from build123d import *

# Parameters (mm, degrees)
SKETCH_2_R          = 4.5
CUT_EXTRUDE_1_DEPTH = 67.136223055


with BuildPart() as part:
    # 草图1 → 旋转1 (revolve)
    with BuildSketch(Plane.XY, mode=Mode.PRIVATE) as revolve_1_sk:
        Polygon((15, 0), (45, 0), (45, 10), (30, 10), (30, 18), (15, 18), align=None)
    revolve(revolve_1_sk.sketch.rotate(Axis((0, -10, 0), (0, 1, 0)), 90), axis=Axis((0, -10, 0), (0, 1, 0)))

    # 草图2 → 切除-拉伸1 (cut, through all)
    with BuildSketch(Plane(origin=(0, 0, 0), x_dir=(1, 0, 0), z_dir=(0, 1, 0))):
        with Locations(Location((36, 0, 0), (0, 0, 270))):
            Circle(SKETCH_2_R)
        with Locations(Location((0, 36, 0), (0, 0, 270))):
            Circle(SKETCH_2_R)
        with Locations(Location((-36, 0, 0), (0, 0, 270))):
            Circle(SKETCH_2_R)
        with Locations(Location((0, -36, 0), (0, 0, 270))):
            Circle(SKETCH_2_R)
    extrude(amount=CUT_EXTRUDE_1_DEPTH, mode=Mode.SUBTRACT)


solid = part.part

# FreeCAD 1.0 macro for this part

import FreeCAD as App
import Part
import Sketcher
Q = App.Units.Quantity


def add_polygon(sketch, points):
    """Adds a closed chain of lines whose ends are joined by coincident constraints."""
    first, n = sketch.GeometryCount, len(points)
    for a, b in zip(points, points[1:] + points[:1]):
        sketch.addGeometry(Part.LineSegment(App.Vector(*a, 0), App.Vector(*b, 0)), False)
    for i in range(n):
        sketch.addConstraint(Sketcher.Constraint("Coincident", first + i, 2, first + (i + 1) % n, 1))

doc = App.newDocument("Part")
params = doc.addObject("Spreadsheet::Sheet", "Params")
for row, (alias, value) in enumerate([
    ("sketch1_width", "30 mm"),
    ("sketch1_height", "10 mm"),
    ("sketch1_height2", "8 mm"),
    ("revolution_angle", "360 deg"),
    ("sketch2_diameter", "9 mm"),
], start=1):
    params.set(f"A{row}", alias)
    params.set(f"B{row}", "=" + value)
    params.setAlias(f"B{row}", alias)

body = doc.addObject("PartDesign::Body", "Body")

sketch1 = body.newObject("Sketcher::SketchObject", "Sketch")
sketch1.AttachmentSupport = (doc.getObject("XY_Plane"), [""])
sketch1.MapMode = "FlatFace"
add_polygon(sketch1, [(15, 0), (45, 0), (45, 10), (30, 10), (30, 18), (15, 18)])
sketch1.addConstraint(Sketcher.Constraint("Horizontal", 0))
sketch1.addConstraint(Sketcher.Constraint("Vertical", 1))
sketch1.addConstraint(Sketcher.Constraint("Horizontal", 2))
sketch1.addConstraint(Sketcher.Constraint("Vertical", 3))
sketch1.addConstraint(Sketcher.Constraint("Horizontal", 4))
sketch1.addConstraint(Sketcher.Constraint("Vertical", 5))
sketch1.addConstraint(Sketcher.Constraint("PointOnObject", 0, 2, -1))
sketch1.addConstraint(Sketcher.Constraint("Equal", 2, 4))
sketch1.addConstraint(Sketcher.Constraint("DistanceX", 0, 1, 0, 2, Q("30 mm")))
sketch1.addConstraint(Sketcher.Constraint("DistanceY", 1, 1, 1, 2, Q("10 mm")))
sketch1.addConstraint(Sketcher.Constraint("DistanceY", 3, 1, 3, 2, Q("8 mm")))
sketch1.addConstraint(Sketcher.Constraint("DistanceX", -1, 1, 0, 2, Q("45 mm")))
sketch1.setExpression("Constraints[14]", "Params.sketch1_width")
sketch1.setExpression("Constraints[15]", "Params.sketch1_height")
sketch1.setExpression("Constraints[16]", "Params.sketch1_height2")
revolution = body.newObject("PartDesign::Revolution", "Revolution")
revolution.Profile = sketch1
revolution.ReferenceAxis = (sketch1, ["V_Axis"])
revolution.setExpression("Angle", "Params.revolution_angle")

sketch2 = body.newObject("Sketcher::SketchObject", "Sketch001")
sketch2.AttachmentSupport = (doc.getObject("XZ_Plane"), [""])
sketch2.MapMode = "FlatFace"
sketch2.addGeometry(Part.Circle(App.Vector(36, 0, 0), App.Vector(0, 0, 1), 4.5), False)
sketch2.addGeometry(Part.Circle(App.Vector(0, -36, 0), App.Vector(0, 0, 1), 4.5), False)
sketch2.addGeometry(Part.Circle(App.Vector(-36, 0, 0), App.Vector(0, 0, 1), 4.5), False)
sketch2.addGeometry(Part.Circle(App.Vector(0, 36, 0), App.Vector(0, 0, 1), 4.5), False)
sketch2.addConstraint(Sketcher.Constraint("Equal", 0, 1))
sketch2.addConstraint(Sketcher.Constraint("Equal", 1, 2))
sketch2.addConstraint(Sketcher.Constraint("Equal", 2, 3))
sketch2.addConstraint(Sketcher.Constraint("Symmetric", 0, 3, 2, 3, -1, 1))
sketch2.addConstraint(Sketcher.Constraint("Symmetric", 1, 3, 3, 3, -1, 1))
sketch2.addConstraint(Sketcher.Constraint("PointOnObject", 0, 3, -1))
sketch2.addConstraint(Sketcher.Constraint("PointOnObject", 1, 3, -2))
sketch2.addConstraint(Sketcher.Constraint("Diameter", 0, Q("9 mm")))
sketch2.addConstraint(Sketcher.Constraint("DistanceX", -1, 1, 0, 3, Q("36 mm")))
sketch2.addConstraint(Sketcher.Constraint("DistanceY", 1, 3, -1, 1, Q("36 mm")))
sketch2.setExpression("Constraints[7]", "Params.sketch2_diameter")
pocket1 = body.newObject("PartDesign::Pocket", "Pocket")
pocket1.Profile = sketch2
pocket1.Type = "ThroughAll"

doc.recompute()
